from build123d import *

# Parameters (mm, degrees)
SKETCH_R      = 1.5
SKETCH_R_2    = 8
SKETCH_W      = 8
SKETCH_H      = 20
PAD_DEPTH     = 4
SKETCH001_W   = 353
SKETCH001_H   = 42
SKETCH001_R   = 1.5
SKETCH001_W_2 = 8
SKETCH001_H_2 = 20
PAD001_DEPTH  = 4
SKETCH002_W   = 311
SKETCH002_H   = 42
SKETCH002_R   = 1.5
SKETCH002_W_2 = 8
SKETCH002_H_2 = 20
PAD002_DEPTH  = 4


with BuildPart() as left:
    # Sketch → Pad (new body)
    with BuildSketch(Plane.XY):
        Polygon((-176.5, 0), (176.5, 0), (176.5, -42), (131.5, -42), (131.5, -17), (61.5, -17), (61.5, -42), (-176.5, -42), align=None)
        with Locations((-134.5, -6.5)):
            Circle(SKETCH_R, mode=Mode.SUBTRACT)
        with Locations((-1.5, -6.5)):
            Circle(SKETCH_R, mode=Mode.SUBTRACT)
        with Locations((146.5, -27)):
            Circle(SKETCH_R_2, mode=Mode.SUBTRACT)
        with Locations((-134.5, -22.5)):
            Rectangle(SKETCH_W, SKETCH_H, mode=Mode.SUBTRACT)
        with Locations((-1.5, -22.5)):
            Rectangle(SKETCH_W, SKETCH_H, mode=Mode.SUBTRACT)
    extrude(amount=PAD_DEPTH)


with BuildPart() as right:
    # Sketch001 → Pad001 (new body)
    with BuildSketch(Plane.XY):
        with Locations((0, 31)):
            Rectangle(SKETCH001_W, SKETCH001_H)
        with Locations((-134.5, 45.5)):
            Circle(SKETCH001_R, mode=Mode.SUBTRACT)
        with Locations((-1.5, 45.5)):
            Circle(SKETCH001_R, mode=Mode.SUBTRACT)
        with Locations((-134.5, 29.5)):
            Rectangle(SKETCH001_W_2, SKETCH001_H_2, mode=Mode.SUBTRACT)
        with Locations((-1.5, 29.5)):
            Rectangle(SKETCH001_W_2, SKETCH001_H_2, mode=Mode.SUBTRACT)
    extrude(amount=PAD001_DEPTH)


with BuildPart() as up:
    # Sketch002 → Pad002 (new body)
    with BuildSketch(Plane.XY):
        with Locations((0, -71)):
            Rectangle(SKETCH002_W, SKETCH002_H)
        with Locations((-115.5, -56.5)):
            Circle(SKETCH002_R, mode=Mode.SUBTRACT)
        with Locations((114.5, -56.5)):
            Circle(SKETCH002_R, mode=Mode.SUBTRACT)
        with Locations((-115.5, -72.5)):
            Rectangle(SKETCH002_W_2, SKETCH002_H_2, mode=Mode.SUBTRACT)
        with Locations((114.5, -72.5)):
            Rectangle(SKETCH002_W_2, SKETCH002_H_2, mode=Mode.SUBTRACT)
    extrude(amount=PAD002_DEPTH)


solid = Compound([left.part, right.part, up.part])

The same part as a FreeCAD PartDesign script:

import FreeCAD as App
import Part
import Sketcher
from FreeCAD import Vector
Q = App.Units.Quantity


def add_polygon(sketch, points):
    """Adds a closed chain of lines whose ends are joined by coincident constraints."""
    first, n = sketch.GeometryCount, len(points)
    for a, b in zip(points, points[1:] + points[:1]):
        sketch.addGeometry(Part.LineSegment(App.Vector(*a, 0), App.Vector(*b, 0)), False)
    for i in range(n):
        sketch.addConstraint(Sketcher.Constraint("Coincident", first + i, 2, first + (i + 1) % n, 1))

doc = App.newDocument("Part")
body = doc.addObject("PartDesign::Body", "Body")

# Sketch on XY plane
sketch1 = body.newObject("Sketcher::SketchObject", "Sketch")
sketch1.AttachmentSupport = (doc.getObject("XY_Plane"), [""])
sketch1.MapMode = "FlatFace"
add_polygon(sketch1, [(176.5, 0), (-176.5, 0), (-176.5, -42), (61.5, -42), (61.5, -17), (131.5, -17), (131.5, -42), (176.5, -42)])  # lines 0-7
sketch1.addGeometry(Part.Circle(Vector(146.5, -27, 0), Vector(0, 0, 1), 8), False)  # 8
add_polygon(sketch1, [(-5.5, -32.5), (-5.5, -12.5), (2.5, -12.5), (2.5, -32.5)])  # lines 9-12
add_polygon(sketch1, [(-138.5, -32.5), (-138.5, -12.5), (-130.5, -12.5), (-130.5, -32.5)])  # lines 13-16
sketch1.addGeometry(Part.Circle(Vector(-1.5, -6.5, 0), Vector(0, 0, 1), 1.5), False)  # 17
sketch1.addGeometry(Part.Circle(Vector(-134.5, -6.5, 0), Vector(0, 0, 1), 1.5), False)  # 18
sketch1.addConstraint([
    Sketcher.Constraint("Horizontal", 0),
    Sketcher.Constraint("Vertical", 1),
    Sketcher.Constraint("Horizontal", 2),
    Sketcher.Constraint("Vertical", 3),
    Sketcher.Constraint("Horizontal", 4),
    Sketcher.Constraint("Vertical", 5),
    Sketcher.Constraint("Horizontal", 6),
    Sketcher.Constraint("Vertical", 7),
    Sketcher.Constraint("Vertical", 9),
    Sketcher.Constraint("Horizontal", 10),
    Sketcher.Constraint("Vertical", 11),
    Sketcher.Constraint("Horizontal", 12),
    Sketcher.Constraint("Vertical", 13),
    Sketcher.Constraint("Horizontal", 14),
    Sketcher.Constraint("Vertical", 15),
    Sketcher.Constraint("Horizontal", 16),
    Sketcher.Constraint("Equal", 17, 18),
    Sketcher.Constraint("Symmetric", 0, 2, 7, 2, -1, 1),
    Sketcher.Constraint("Horizontal", 17, 3, 18, 3),
    Sketcher.Constraint("Horizontal", 2, 2, 5, 2),
    Sketcher.Constraint("Horizontal", 10, 2, 13, 2),
    Sketcher.Constraint("Horizontal", 12, 2, 15, 2),
    Sketcher.Constraint("Equal", 12, 14),
    Sketcher.Constraint("Diameter", 8, Q("16 mm")),
    Sketcher.Constraint("Diameter", 17, Q("3 mm")),
    Sketcher.Constraint("DistanceX", 0, 2, 0, 1, Q("353 mm")),
    Sketcher.Constraint("DistanceX", 2, 1, 2, 2, Q("238 mm")),
    Sketcher.Constraint("DistanceX", 4, 1, 4, 2, Q("70 mm")),
    Sketcher.Constraint("DistanceX", 10, 1, 10, 2, Q("8 mm")),
    Sketcher.Constraint("DistanceY", 1, 2, 1, 1, Q("42 mm")),
    Sketcher.Constraint("DistanceY", 3, 1, 3, 2, Q("25 mm")),
    Sketcher.Constraint("DistanceY", 9, 1, 9, 2, Q("20 mm")),
    Sketcher.Constraint("DistanceY", 8, 3, -1, 1, Q("27 mm")),
    Sketcher.Constraint("DistanceX", 17, 3, 8, 3, Q("148 mm")),
    Sketcher.Constraint("DistanceX", 18, 3, 17, 3, Q("133 mm")),
    Sketcher.Constraint("DistanceX", 0, 2, 18, 3, Q("42 mm")),
    Sketcher.Constraint("DistanceX", 9, 2, 17, 3, Q("4 mm")),
    Sketcher.Constraint("DistanceY", 9, 2, 17, 3, Q("6 mm")),
    Sketcher.Constraint("DistanceX", 13, 2, 18, 3, Q("4 mm")),
    Sketcher.Constraint("DistanceY", 17, 3, -1, 1, Q("6.5 mm")),
])
pad1 = body.newObject("PartDesign::Pad", "Pad")
pad1.Profile = sketch1
pad1.Length = 4
body2 = doc.addObject("PartDesign::Body", "Body001")

# Sketch on XY plane
sketch2 = body2.newObject("Sketcher::SketchObject", "Sketch001")
sketch2.AttachmentSupport = (doc.getObject("XY_Plane001"), [""])
sketch2.MapMode = "FlatFace"
add_polygon(sketch2, [(-176.5, 52), (-176.5, 10), (176.5, 10), (176.5, 52)])  # lines 0-3
add_polygon(sketch2, [(-130.5, 19.5), (-138.5, 19.5), (-138.5, 39.5), (-130.5, 39.5)])  # lines 4-7
add_polygon(sketch2, [(2.5, 19.5), (-5.5, 19.5), (-5.5, 39.5), (2.5, 39.5)])  # lines 8-11
sketch2.addGeometry(Part.Circle(Vector(-134.5, 45.5, 0), Vector(0, 0, 1), 1.5), False)  # 12
sketch2.addGeometry(Part.Circle(Vector(-1.5, 45.5, 0), Vector(0, 0, 1), 1.5), False)  # 13
sketch2.addConstraint([
    Sketcher.Constraint("Vertical", 0),
    Sketcher.Constraint("Horizontal", 1),
    Sketcher.Constraint("Vertical", 2),
    Sketcher.Constraint("Horizontal", 3),
    Sketcher.Constraint("Horizontal", 4),
    Sketcher.Constraint("Vertical", 5),
    Sketcher.Constraint("Horizontal", 6),
    Sketcher.Constraint("Vertical", 7),
    Sketcher.Constraint("Horizontal", 8),
    Sketcher.Constraint("Vertical", 9),
    Sketcher.Constraint("Horizontal", 10),
    Sketcher.Constraint("Vertical", 11),
    Sketcher.Constraint("Equal", 12, 13),
    Sketcher.Constraint("Horizontal", 12, 3, 13, 3),
    Sketcher.Constraint("Horizontal", 7, 2, 8, 2),
    Sketcher.Constraint("Horizontal", 6, 2, 9, 2),
    Sketcher.Constraint("Equal", 6, 8),
    Sketcher.Constraint("Diameter", 12, Q("3 mm")),
    Sketcher.Constraint("DistanceX", 1, 1, 1, 2, Q("353 mm")),
    Sketcher.Constraint("DistanceX", 4, 2, 4, 1, Q("8 mm")),
    Sketcher.Constraint("DistanceY", 0, 2, 0, 1, Q("42 mm")),
    Sketcher.Constraint("DistanceY", 5, 1, 5, 2, Q("20 mm")),
    Sketcher.Constraint("DistanceY", -1, 1, 0, 2, Q("10 mm")),
    Sketcher.Constraint("DistanceX", 12, 3, 13, 3, Q("133 mm")),
    Sketcher.Constraint("DistanceX", 0, 2, 12, 3, Q("42 mm")),
    Sketcher.Constraint("DistanceX", 4, 2, 12, 3, Q("4 mm")),
    Sketcher.Constraint("DistanceY", 4, 2, 12, 3, Q("26 mm")),
    Sketcher.Constraint("DistanceX", 8, 2, 13, 3, Q("4 mm")),
    Sketcher.Constraint("DistanceX", 12, 3, -1, 1, Q("134.5 mm")),
    Sketcher.Constraint("DistanceY", -1, 1, 12, 3, Q("45.5 mm")),
])
pad2 = body2.newObject("PartDesign::Pad", "Pad001")
pad2.Profile = sketch2
pad2.Length = 4
body3 = doc.addObject("PartDesign::Body", "Body002")

# Sketch on XY plane
sketch3 = body3.newObject("Sketcher::SketchObject", "Sketch002")
sketch3.AttachmentSupport = (doc.getObject("XY_Plane002"), [""])
sketch3.MapMode = "FlatFace"
add_polygon(sketch3, [(-155.5, -50), (-155.5, -92), (155.5, -92), (155.5, -50)])  # lines 0-3
add_polygon(sketch3, [(-111.5, -82.5), (-119.5, -82.5), (-119.5, -62.5), (-111.5, -62.5)])  # lines 4-7
add_polygon(sketch3, [(118.5, -82.5), (110.5, -82.5), (110.5, -62.5), (118.5, -62.5)])  # lines 8-11
sketch3.addGeometry(Part.Circle(Vector(-115.5, -56.5, 0), Vector(0, 0, 1), 1.5), False)  # 12
sketch3.addGeometry(Part.Circle(Vector(114.5, -56.5, 0), Vector(0, 0, 1), 1.5), False)  # 13
sketch3.addConstraint([
    Sketcher.Constraint("Vertical", 0),
    Sketcher.Constraint("Horizontal", 1),
    Sketcher.Constraint("Vertical", 2),
    Sketcher.Constraint("Horizontal", 3),
    Sketcher.Constraint("Horizontal", 4),
    Sketcher.Constraint("Vertical", 5),
    Sketcher.Constraint("Horizontal", 6),
    Sketcher.Constraint("Vertical", 7),
    Sketcher.Constraint("Horizontal", 8),
    Sketcher.Constraint("Vertical", 9),
    Sketcher.Constraint("Horizontal", 10),
    Sketcher.Constraint("Vertical", 11),
    Sketcher.Constraint("Equal", 12, 13),
    Sketcher.Constraint("Horizontal", 12, 3, 13, 3),
    Sketcher.Constraint("Horizontal", 7, 2, 8, 2),
    Sketcher.Constraint("Horizontal", 6, 2, 9, 2),
    Sketcher.Constraint("Equal", 6, 8),
    Sketcher.Constraint("Diameter", 12, Q("3 mm")),
    Sketcher.Constraint("DistanceX", 1, 1, 1, 2, Q("311 mm")),
    Sketcher.Constraint("DistanceX", 4, 2, 4, 1, Q("8 mm")),
    Sketcher.Constraint("DistanceY", 0, 2, 0, 1, Q("42 mm")),
    Sketcher.Constraint("DistanceY", 5, 1, 5, 2, Q("20 mm")),
    Sketcher.Constraint("DistanceY", 0, 2, -1, 1, Q("92 mm")),
    Sketcher.Constraint("DistanceX", 12, 3, 13, 3, Q("230 mm")),
    Sketcher.Constraint("DistanceX", 0, 2, 12, 3, Q("40 mm")),
    Sketcher.Constraint("DistanceX", 4, 2, 12, 3, Q("4 mm")),
    Sketcher.Constraint("DistanceY", 4, 2, 12, 3, Q("26 mm")),
    Sketcher.Constraint("DistanceX", 8, 2, 13, 3, Q("4 mm")),
    Sketcher.Constraint("DistanceX", 12, 3, -1, 1, Q("115.5 mm")),
    Sketcher.Constraint("DistanceY", 12, 3, -1, 1, Q("56.5 mm")),
])
pad3 = body3.newObject("PartDesign::Pad", "Pad002")
pad3.Profile = sketch3
pad3.Length = 4

doc.recompute()
